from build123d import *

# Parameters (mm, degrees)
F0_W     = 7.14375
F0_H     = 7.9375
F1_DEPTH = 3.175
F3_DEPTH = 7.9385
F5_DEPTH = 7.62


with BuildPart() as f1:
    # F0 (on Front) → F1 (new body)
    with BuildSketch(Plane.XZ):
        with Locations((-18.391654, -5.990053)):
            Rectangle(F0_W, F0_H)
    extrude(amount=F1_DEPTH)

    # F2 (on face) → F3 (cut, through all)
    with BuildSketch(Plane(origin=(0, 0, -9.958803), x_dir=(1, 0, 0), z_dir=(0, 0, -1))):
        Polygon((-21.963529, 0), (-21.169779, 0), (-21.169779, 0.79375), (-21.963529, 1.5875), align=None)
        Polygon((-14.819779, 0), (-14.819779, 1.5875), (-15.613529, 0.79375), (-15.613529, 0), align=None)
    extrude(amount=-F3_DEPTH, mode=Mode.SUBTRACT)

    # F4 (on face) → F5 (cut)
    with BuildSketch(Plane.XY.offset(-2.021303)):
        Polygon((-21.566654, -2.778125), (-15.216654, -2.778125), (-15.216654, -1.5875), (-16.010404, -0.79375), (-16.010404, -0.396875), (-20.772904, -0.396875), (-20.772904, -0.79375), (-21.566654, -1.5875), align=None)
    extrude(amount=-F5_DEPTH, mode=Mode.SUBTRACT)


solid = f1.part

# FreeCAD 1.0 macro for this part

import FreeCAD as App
import Part
import Sketcher
Q = App.Units.Quantity

doc = App.newDocument("Part")
body = doc.addObject("PartDesign::Body", "Body")

# Sketch on XZ plane
sketch1 = doc.addObject("Sketcher::SketchObject", "Sketch")
body.addObject(sketch1)
sketch1.AttachmentSupport = (doc.XZ_Plane, [""])
sketch1.MapMode = "FlatFace"
sketch1.addGeometry(Part.LineSegment(App.Vector(-22, -2, 0), App.Vector(-22, -10, 0)), False)
sketch1.addGeometry(Part.LineSegment(App.Vector(-22, -10, 0), App.Vector(-15, -10, 0)), False)
sketch1.addGeometry(Part.LineSegment(App.Vector(-15, -10, 0), App.Vector(-15, -2, 0)), False)
sketch1.addGeometry(Part.LineSegment(App.Vector(-15, -2, 0), App.Vector(-22, -2, 0)), False)
sketch1.addConstraint(Sketcher.Constraint("Coincident", 0, 2, 1, 1))
sketch1.addConstraint(Sketcher.Constraint("Coincident", 1, 2, 2, 1))
sketch1.addConstraint(Sketcher.Constraint("Coincident", 2, 2, 3, 1))
sketch1.addConstraint(Sketcher.Constraint("Coincident", 3, 2, 0, 1))
sketch1.addConstraint(Sketcher.Constraint("Vertical", 0))
sketch1.addConstraint(Sketcher.Constraint("Horizontal", 1))
sketch1.addConstraint(Sketcher.Constraint("Vertical", 2))
sketch1.addConstraint(Sketcher.Constraint("Horizontal", 3))
sketch1.addConstraint(Sketcher.Constraint("DistanceX", 1, 1, 1, 2, Q("0.28125 in")))
sketch1.addConstraint(Sketcher.Constraint("DistanceY", 0, 2, 0, 1, Q("0.3125 in")))
sketch1.addConstraint(Sketcher.Constraint("DistanceX", 0, 2, -1, 1, Q("21.963529 mm")))
sketch1.addConstraint(Sketcher.Constraint("DistanceY", 0, 2, -1, 1, Q("9.958803 mm")))
pad1 = doc.addObject("PartDesign::Pad", "Pad")
body.addObject(pad1)
pad1.Profile = sketch1
pad1.Length = Q("0.125 in")

# Sketch on XY plane
sketch2 = doc.addObject("Sketcher::SketchObject", "Sketch001")
body.addObject(sketch2)
sketch2.AttachmentSupport = (doc.XY_Plane, [""])
sketch2.MapMode = "FlatFace"
sketch2.AttachmentOffset = App.Placement(App.Vector(0, 0, -9.958803), App.Rotation())
sketch2.addGeometry(Part.LineSegment(App.Vector(-22, 0, 0), App.Vector(-21.2, 0, 0)), False)
sketch2.addGeometry(Part.LineSegment(App.Vector(-21.2, 0, 0), App.Vector(-21.2, -0.8, 0)), False)
sketch2.addGeometry(Part.LineSegment(App.Vector(-21.2, -0.8, 0), App.Vector(-22, -1.6, 0)), False)
sketch2.addGeometry(Part.LineSegment(App.Vector(-22, -1.6, 0), App.Vector(-22, 0, 0)), False)
sketch2.addGeometry(Part.LineSegment(App.Vector(-14.8, 0, 0), App.Vector(-14.8, -1.6, 0)), False)
sketch2.addGeometry(Part.LineSegment(App.Vector(-14.8, -1.6, 0), App.Vector(-15.6, -0.8, 0)), False)
sketch2.addGeometry(Part.LineSegment(App.Vector(-15.6, -0.8, 0), App.Vector(-15.6, 0, 0)), False)
sketch2.addGeometry(Part.LineSegment(App.Vector(-15.6, 0, 0), App.Vector(-14.8, 0, 0)), False)
sketch2.addConstraint(Sketcher.Constraint("Coincident", 0, 2, 1, 1))
sketch2.addConstraint(Sketcher.Constraint("Coincident", 1, 2, 2, 1))
sketch2.addConstraint(Sketcher.Constraint("Coincident", 2, 2, 3, 1))
sketch2.addConstraint(Sketcher.Constraint("Coincident", 3, 2, 0, 1))
sketch2.addConstraint(Sketcher.Constraint("Coincident", 4, 2, 5, 1))
sketch2.addConstraint(Sketcher.Constraint("Coincident", 5, 2, 6, 1))
sketch2.addConstraint(Sketcher.Constraint("Coincident", 6, 2, 7, 1))
sketch2.addConstraint(Sketcher.Constraint("Coincident", 7, 2, 4, 1))
sketch2.addConstraint(Sketcher.Constraint("Horizontal", 0))
sketch2.addConstraint(Sketcher.Constraint("Vertical", 1))
sketch2.addConstraint(Sketcher.Constraint("Vertical", 3))
sketch2.addConstraint(Sketcher.Constraint("Vertical", 4))
sketch2.addConstraint(Sketcher.Constraint("Vertical", 6))
sketch2.addConstraint(Sketcher.Constraint("Horizontal", 7))
sketch2.addConstraint(Sketcher.Constraint("PointOnObject", 0, 2, -1))
sketch2.addConstraint(Sketcher.Constraint("PointOnObject", 6, 2, -1))
sketch2.addConstraint(Sketcher.Constraint("Perpendicular", 2, 5))
sketch2.addConstraint(Sketcher.Constraint("Horizontal", 2, 2, 4, 2))
sketch2.addConstraint(Sketcher.Constraint("Horizontal", 1, 2, 5, 2))
sketch2.addConstraint(Sketcher.Constraint("Equal", 0, 7))
sketch2.addConstraint(Sketcher.Constraint("Equal", 7, 1))
sketch2.addConstraint(Sketcher.Constraint("DistanceX", 0, 1, 0, 2, Q("0.03125 in")))
sketch2.addConstraint(Sketcher.Constraint("DistanceX", 1, 2, 4, 2, Q("0.25 in")))
sketch2.addConstraint(Sketcher.Constraint("DistanceX", 0, 2, -1, 1, Q("21.169779 mm")))
pocket1 = doc.addObject("PartDesign::Pocket", "Pocket")
body.addObject(pocket1)
pocket1.Profile = sketch2
pocket1.Type = "ThroughAll"
pocket1.Reversed = True

# Sketch on XY plane
sketch3 = doc.addObject("Sketcher::SketchObject", "Sketch002")
body.addObject(sketch3)
sketch3.AttachmentSupport = (doc.XY_Plane, [""])
sketch3.MapMode = "FlatFace"
sketch3.AttachmentOffset = App.Placement(App.Vector(0, 0, -2.021303), App.Rotation())
sketch3.addGeometry(Part.LineSegment(App.Vector(-21.57, -2.78, 0), App.Vector(-15.22, -2.78, 0)), False)
sketch3.addGeometry(Part.LineSegment(App.Vector(-15.22, -2.78, 0), App.Vector(-15.22, -1.59, 0)), False)
sketch3.addGeometry(Part.LineSegment(App.Vector(-15.22, -1.59, 0), App.Vector(-16.01, -0.79, 0)), False)
sketch3.addGeometry(Part.LineSegment(App.Vector(-16.01, -0.79, 0), App.Vector(-16.01, -0.4, 0)), False)
sketch3.addGeometry(Part.LineSegment(App.Vector(-16.01, -0.4, 0), App.Vector(-20.77, -0.4, 0)), False)
sketch3.addGeometry(Part.LineSegment(App.Vector(-20.77, -0.4, 0), App.Vector(-20.77, -0.79, 0)), False)
sketch3.addGeometry(Part.LineSegment(App.Vector(-20.77, -0.79, 0), App.Vector(-21.57, -1.59, 0)), False)
sketch3.addGeometry(Part.LineSegment(App.Vector(-21.57, -1.59, 0), App.Vector(-21.57, -2.78, 0)), False)
sketch3.addConstraint(Sketcher.Constraint("Coincident", 0, 2, 1, 1))
sketch3.addConstraint(Sketcher.Constraint("Coincident", 1, 2, 2, 1))
sketch3.addConstraint(Sketcher.Constraint("Coincident", 2, 2, 3, 1))
sketch3.addConstraint(Sketcher.Constraint("Coincident", 3, 2, 4, 1))
sketch3.addConstraint(Sketcher.Constraint("Coincident", 4, 2, 5, 1))
sketch3.addConstraint(Sketcher.Constraint("Coincident", 5, 2, 6, 1))
sketch3.addConstraint(Sketcher.Constraint("Coincident", 6, 2, 7, 1))
sketch3.addConstraint(Sketcher.Constraint("Coincident", 7, 2, 0, 1))
sketch3.addConstraint(Sketcher.Constraint("Horizontal", 0))
sketch3.addConstraint(Sketcher.Constraint("Vertical", 1))
sketch3.addConstraint(Sketcher.Constraint("Vertical", 3))
sketch3.addConstraint(Sketcher.Constraint("Horizontal", 4))
sketch3.addConstraint(Sketcher.Constraint("Vertical", 5))
sketch3.addConstraint(Sketcher.Constraint("Vertical", 7))
sketch3.addConstraint(Sketcher.Constraint("Perpendicular", 2, 6))
sketch3.addConstraint(Sketcher.Constraint("Horizontal", 2, 2, 5, 2))
sketch3.addConstraint(Sketcher.Constraint("Horizontal", 1, 2, 6, 2))
sketch3.addConstraint(Sketcher.Constraint("Equal", 2, 6))
sketch3.addConstraint(Sketcher.Constraint("DistanceX", 0, 1, 0, 2, Q("0.25 in")))
sketch3.addConstraint(Sketcher.Constraint("DistanceX", 4, 2, 4, 1, Q("0.1875 in")))
sketch3.addConstraint(Sketcher.Constraint("DistanceY", 1, 1, 1, 2, Q("0.046875 in")))
sketch3.addConstraint(Sketcher.Constraint("DistanceY", 3, 1, 3, 2, Q("0.015625 in")))
sketch3.addConstraint(Sketcher.Constraint("DistanceY", 0, 2, -1, 1, Q("0.109375 in")))
sketch3.addConstraint(Sketcher.Constraint("DistanceX", 0, 2, -1, 1, Q("15.216654 mm")))
pocket2 = doc.addObject("PartDesign::Pocket", "Pocket001")
body.addObject(pocket2)
pocket2.Profile = sketch3
pocket2.Length = Q("0.3 in")

doc.recompute()
